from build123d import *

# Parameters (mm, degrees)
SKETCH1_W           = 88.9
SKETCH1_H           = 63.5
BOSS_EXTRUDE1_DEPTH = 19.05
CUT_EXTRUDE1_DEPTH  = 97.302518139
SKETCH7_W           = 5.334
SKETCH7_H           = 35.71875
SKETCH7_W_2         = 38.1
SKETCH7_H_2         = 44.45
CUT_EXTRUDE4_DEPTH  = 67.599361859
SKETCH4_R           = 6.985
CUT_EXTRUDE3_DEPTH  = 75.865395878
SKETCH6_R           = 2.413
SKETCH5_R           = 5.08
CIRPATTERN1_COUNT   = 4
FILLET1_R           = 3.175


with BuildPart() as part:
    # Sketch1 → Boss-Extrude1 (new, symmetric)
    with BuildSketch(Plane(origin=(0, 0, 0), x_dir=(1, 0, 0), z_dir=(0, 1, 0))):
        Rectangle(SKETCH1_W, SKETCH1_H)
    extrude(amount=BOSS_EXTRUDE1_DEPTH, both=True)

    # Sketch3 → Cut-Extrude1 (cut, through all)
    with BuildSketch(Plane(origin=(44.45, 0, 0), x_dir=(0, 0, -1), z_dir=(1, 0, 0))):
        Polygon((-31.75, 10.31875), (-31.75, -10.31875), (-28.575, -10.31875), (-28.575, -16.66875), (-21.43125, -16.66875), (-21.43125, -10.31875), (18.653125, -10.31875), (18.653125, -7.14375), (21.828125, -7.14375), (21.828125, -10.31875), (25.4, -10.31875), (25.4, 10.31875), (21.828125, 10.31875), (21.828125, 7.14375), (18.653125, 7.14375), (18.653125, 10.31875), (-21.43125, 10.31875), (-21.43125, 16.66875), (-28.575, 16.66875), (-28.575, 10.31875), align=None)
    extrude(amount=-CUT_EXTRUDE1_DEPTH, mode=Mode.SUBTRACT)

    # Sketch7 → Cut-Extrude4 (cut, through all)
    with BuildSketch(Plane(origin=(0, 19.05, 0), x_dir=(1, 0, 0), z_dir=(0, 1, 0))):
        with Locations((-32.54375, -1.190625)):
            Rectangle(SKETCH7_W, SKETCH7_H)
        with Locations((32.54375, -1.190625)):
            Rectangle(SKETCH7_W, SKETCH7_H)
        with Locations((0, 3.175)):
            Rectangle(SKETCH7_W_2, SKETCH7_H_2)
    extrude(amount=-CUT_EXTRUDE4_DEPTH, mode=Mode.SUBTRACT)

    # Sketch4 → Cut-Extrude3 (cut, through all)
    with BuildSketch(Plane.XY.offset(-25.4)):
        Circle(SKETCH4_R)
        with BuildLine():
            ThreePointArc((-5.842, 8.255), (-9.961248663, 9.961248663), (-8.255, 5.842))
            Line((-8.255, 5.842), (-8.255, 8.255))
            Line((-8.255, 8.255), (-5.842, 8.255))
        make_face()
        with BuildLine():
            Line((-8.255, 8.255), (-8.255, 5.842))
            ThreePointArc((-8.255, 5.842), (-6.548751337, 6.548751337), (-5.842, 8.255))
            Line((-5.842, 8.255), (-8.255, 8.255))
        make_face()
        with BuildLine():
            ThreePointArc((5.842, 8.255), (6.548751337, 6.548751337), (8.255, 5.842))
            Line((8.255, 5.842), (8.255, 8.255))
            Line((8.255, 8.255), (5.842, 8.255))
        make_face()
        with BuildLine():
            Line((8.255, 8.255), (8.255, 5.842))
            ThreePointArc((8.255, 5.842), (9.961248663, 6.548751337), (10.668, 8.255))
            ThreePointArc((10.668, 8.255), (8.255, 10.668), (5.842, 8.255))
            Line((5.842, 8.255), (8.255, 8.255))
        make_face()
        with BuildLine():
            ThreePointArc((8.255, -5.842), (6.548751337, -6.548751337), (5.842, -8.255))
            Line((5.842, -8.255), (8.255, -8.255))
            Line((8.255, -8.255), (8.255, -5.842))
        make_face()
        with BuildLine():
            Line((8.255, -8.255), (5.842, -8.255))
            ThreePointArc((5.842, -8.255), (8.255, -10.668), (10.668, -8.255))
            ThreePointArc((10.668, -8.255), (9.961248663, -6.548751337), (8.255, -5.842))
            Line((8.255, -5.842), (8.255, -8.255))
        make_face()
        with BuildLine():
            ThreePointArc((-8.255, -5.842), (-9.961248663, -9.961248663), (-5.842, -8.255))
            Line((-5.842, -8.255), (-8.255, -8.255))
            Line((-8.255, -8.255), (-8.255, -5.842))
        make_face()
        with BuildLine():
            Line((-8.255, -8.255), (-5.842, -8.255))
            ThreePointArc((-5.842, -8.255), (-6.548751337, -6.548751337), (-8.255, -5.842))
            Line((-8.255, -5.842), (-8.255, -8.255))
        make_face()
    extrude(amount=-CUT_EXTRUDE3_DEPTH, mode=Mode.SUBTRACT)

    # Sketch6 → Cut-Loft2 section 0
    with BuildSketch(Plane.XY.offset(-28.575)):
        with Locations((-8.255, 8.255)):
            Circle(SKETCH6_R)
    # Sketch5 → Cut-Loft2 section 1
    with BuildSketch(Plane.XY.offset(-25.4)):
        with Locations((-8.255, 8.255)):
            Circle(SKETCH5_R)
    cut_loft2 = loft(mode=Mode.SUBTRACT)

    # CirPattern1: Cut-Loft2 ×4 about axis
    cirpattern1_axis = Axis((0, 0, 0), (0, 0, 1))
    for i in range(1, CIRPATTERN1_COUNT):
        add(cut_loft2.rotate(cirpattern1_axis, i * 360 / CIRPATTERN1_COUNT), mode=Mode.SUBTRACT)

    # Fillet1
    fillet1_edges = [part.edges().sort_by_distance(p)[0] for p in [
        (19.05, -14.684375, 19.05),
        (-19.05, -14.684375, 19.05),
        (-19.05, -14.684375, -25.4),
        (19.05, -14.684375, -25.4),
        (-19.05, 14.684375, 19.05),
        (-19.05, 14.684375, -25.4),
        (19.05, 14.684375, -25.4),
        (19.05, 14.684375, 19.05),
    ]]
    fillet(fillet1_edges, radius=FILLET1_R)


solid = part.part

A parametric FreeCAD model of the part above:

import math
import FreeCAD as App
import Part
import Sketcher

V = App.Vector
Q = App.Units.Quantity


def edges_at(feature, points):
    """Names of the edges that pass closest to the given points."""
    edges = feature.Shape.Edges
    near = lambda p: min(range(len(edges)), key=lambda i: edges[i].distToShape(Part.Vertex(*p))[0])
    return sorted({f"Edge{near(p) + 1}" for p in points})


def add_polygon(sketch, points):
    """Adds a closed chain of lines whose ends are joined by coincident constraints."""
    first, n = sketch.GeometryCount, len(points)
    for a, b in zip(points, points[1:] + points[:1]):
        sketch.addGeometry(Part.LineSegment(App.Vector(*a, 0), App.Vector(*b, 0)), False)
    for i in range(n):
        sketch.addConstraint(Sketcher.Constraint("Coincident", first + i, 2, first + (i + 1) % n, 1))

doc = App.newDocument("Part")
body = doc.addObject("PartDesign::Body", "Body")

sketch1 = body.newObject("Sketcher::SketchObject", "Sketch")
sketch1.AttachmentSupport = (doc.getObject("XZ_Plane"), [""])
sketch1.MapMode = "FlatFace"
add_polygon(sketch1, [(-44.45, -31.75), (-44.45, 31.75), (44.45, 31.75), (44.45, -31.75)])
sketch1.addConstraint([
    Sketcher.Constraint("Vertical", 0),
    Sketcher.Constraint("Horizontal", 1),
    Sketcher.Constraint("Vertical", 2),
    Sketcher.Constraint("Horizontal", 3),
    Sketcher.Constraint("Symmetric", 0, 2, 2, 2, -1, 1),
    Sketcher.Constraint("DistanceX", 1, 1, 1, 2, Q("3.5 in")),
    Sketcher.Constraint("DistanceY", 0, 1, 0, 2, Q("2.5 in")),
])
pad1 = body.newObject("PartDesign::Pad", "Pad")
pad1.Profile = sketch1
pad1.Length = Q("1.5 in")
pad1.Midplane = True

sketch2 = body.newObject("Sketcher::SketchObject", "Sketch001")
sketch2.AttachmentSupport = (doc.getObject("YZ_Plane"), [""])
sketch2.MapMode = "FlatFace"
sketch2.AttachmentOffset = App.Placement(V(0, 0, 1.75 * 25.4), App.Rotation())
add_polygon(sketch2, [(10.31875, 31.75), (-10.31875, 31.75), (-10.31875, 28.575), (-16.66875, 28.575), (-16.66875, 21.43125), (-10.31875, 21.43125), (-10.31875, -18.653125), (-7.14375, -18.653125), (-7.14375, -21.828125), (-10.31875, -21.828125), (-10.31875, -25.4), (10.31875, -25.4), (10.31875, -21.828125), (7.14375, -21.828125), (7.14375, -18.653125), (10.31875, -18.653125), (10.31875, 21.43125), (16.66875, 21.43125), (16.66875, 28.575), (10.31875, 28.575)])
sketch2.addConstraint([
    Sketcher.Constraint("Horizontal", 0),
    Sketcher.Constraint("Vertical", 1),
    Sketcher.Constraint("Horizontal", 2),
    Sketcher.Constraint("Vertical", 3),
    Sketcher.Constraint("Horizontal", 4),
    Sketcher.Constraint("Vertical", 5),
    Sketcher.Constraint("Horizontal", 6),
    Sketcher.Constraint("Vertical", 7),
    Sketcher.Constraint("Horizontal", 8),
    Sketcher.Constraint("Vertical", 9),
    Sketcher.Constraint("Horizontal", 10),
    Sketcher.Constraint("Vertical", 11),
    Sketcher.Constraint("Horizontal", 12),
    Sketcher.Constraint("Vertical", 13),
    Sketcher.Constraint("Horizontal", 14),
    Sketcher.Constraint("Vertical", 15),
    Sketcher.Constraint("Horizontal", 16),
    Sketcher.Constraint("Vertical", 17),
    Sketcher.Constraint("Horizontal", 18),
    Sketcher.Constraint("Vertical", 19),
    Sketcher.Constraint("Symmetric", 8, 2, 11, 2, -2),
    Sketcher.Constraint("Symmetric", 6, 2, 13, 2, -2),
    Sketcher.Constraint("Symmetric", 4, 2, 15, 2, -2),
    Sketcher.Constraint("Symmetric", 2, 2, 17, 2, -2),
    Sketcher.Constraint("Vertical", 1, 2, 4, 2),
    Sketcher.Constraint("Vertical", 5, 2, 8, 2),
    Sketcher.Constraint("Vertical", 15, 2, 18, 2),
    Sketcher.Constraint("Equal", 14, 1),
    Sketcher.Constraint("Equal", 1, 7),
    Sketcher.Constraint("DistanceY", 9, 2, -1, 1, Q("1 in")),
    Sketcher.Constraint("DistanceX", 2, 2, 2, 1, Q("0.25 in")),
    Sketcher.Constraint("DistanceX", 0, 2, 0, 1, Q("0.8125 in")),
    Sketcher.Constraint("DistanceX", 6, 1, 6, 2, Q("0.125 in")),
    Sketcher.Constraint("DistanceY", 3, 2, 3, 1, Q("0.28125 in")),
    Sketcher.Constraint("DistanceY", 5, 2, 5, 1, Q("1.578125 in")),
    Sketcher.Constraint("DistanceY", 9, 2, 9, 1, Q("0.140625 in")),
])
pocket1 = body.newObject("PartDesign::Pocket", "Pocket")
pocket1.Profile = sketch2
pocket1.Type = "ThroughAll"

sketch3 = body.newObject("Sketcher::SketchObject", "Sketch002")
sketch3.AttachmentSupport = (doc.getObject("XZ_Plane"), [""])
sketch3.MapMode = "FlatFace"
sketch3.AttachmentOffset = App.Placement(V(0, 0, -0.75 * 25.4), App.Rotation())
add_polygon(sketch3, [(-35.21075, -16.66875), (-35.21075, 19.05), (-29.87675, 19.05), (-29.87675, -16.66875)])
add_polygon(sketch3, [(29.87675, -16.66875), (29.87675, 19.05), (35.21075, 19.05), (35.21075, -16.66875)])
add_polygon(sketch3, [(-19.05, -25.4), (-19.05, 19.05), (19.05, 19.05), (19.05, -25.4)])
sketch3.addConstraint([
    Sketcher.Constraint("Vertical", 0),
    Sketcher.Constraint("Horizontal", 1),
    Sketcher.Constraint("Vertical", 2),
    Sketcher.Constraint("Horizontal", 3),
    Sketcher.Constraint("Vertical", 4),
    Sketcher.Constraint("Horizontal", 5),
    Sketcher.Constraint("Vertical", 6),
    Sketcher.Constraint("Horizontal", 7),
    Sketcher.Constraint("Vertical", 8),
    Sketcher.Constraint("Horizontal", 9),
    Sketcher.Constraint("Vertical", 10),
    Sketcher.Constraint("Horizontal", 11),
    Sketcher.Constraint("Symmetric", 1, 2, 4, 2, -2),
    Sketcher.Constraint("Symmetric", 3, 2, 6, 2, -2),
    Sketcher.Constraint("Horizontal", 5, 2, 8, 2),
    Sketcher.Constraint("DistanceX", 9, 1, 9, 2, Q("1.5 in")),
    Sketcher.Constraint("DistanceY", 10, 2, -1, 1, Q("1 in")),
    Sketcher.Constraint("DistanceX", 1, 1, 1, 2, Q("0.21 in")),
    Sketcher.Constraint("DistanceY", 8, 1, 8, 2, Q("1.75 in")),
    Sketcher.Constraint("DistanceY", 0, 1, 0, 2, Q("1.40625 in")),
    Sketcher.Constraint("DistanceX", 8, 2, -1, 1, Q("0.75 in")),
    Sketcher.Constraint("DistanceX", 0, 2, 4, 2, Q("2.5625 in")),
])
pocket2 = body.newObject("PartDesign::Pocket", "Pocket001")
pocket2.Profile = sketch3
pocket2.Type = "ThroughAll"
pocket2.Reversed = True

sketch4 = body.newObject("Sketcher::SketchObject", "Sketch003")
sketch4.AttachmentSupport = (doc.getObject("XY_Plane"), [""])
sketch4.MapMode = "FlatFace"
sketch4.AttachmentOffset = App.Placement(V(0, 0, -1 * 25.4), App.Rotation())
sketch4.addGeometry([
    Part.Circle(V(0, 0, 0), V(0, 0, 1), 6.985),
    Part.ArcOfCircle(Part.Circle(V(-8.255, 8.255, 0), V(0, 0, 1), 2.413), math.radians(0), math.radians(270)),
    Part.ArcOfCircle(Part.Circle(V(-8.255, 8.255, 0), V(0, 0, 1), 2.413), math.radians(-90), math.radians(0)),
    Part.ArcOfCircle(Part.Circle(V(8.255, 8.255, 0), V(0, 0, 1), 2.413), math.radians(180), math.radians(270)),
    Part.ArcOfCircle(Part.Circle(V(8.255, 8.255, 0), V(0, 0, 1), 2.413), math.radians(-90), math.radians(0)),
    Part.ArcOfCircle(Part.Circle(V(8.255, 8.255, 0), V(0, 0, 1), 2.413), math.radians(0), math.radians(180)),
    Part.ArcOfCircle(Part.Circle(V(8.255, -8.255, 0), V(0, 0, 1), 2.413), math.radians(90), math.radians(180)),
    Part.ArcOfCircle(Part.Circle(V(8.255, -8.255, 0), V(0, 0, 1), 2.413), math.radians(180), math.radians(360)),
    Part.ArcOfCircle(Part.Circle(V(8.255, -8.255, 0), V(0, 0, 1), 2.413), math.radians(0), math.radians(90)),
    Part.ArcOfCircle(Part.Circle(V(-8.255, -8.255, 0), V(0, 0, 1), 2.413), math.radians(90), math.radians(360)),
    Part.ArcOfCircle(Part.Circle(V(-8.255, -8.255, 0), V(0, 0, 1), 2.413), math.radians(0), math.radians(90)),
], False)
sketch4.addConstraint([
    Sketcher.Constraint("Tangent", 1, 1, 2, 2),
    Sketcher.Constraint("Coincident", 2, 1, 1, 2),
    Sketcher.Constraint("Tangent", 3, 2, 4, 1),
    Sketcher.Constraint("Tangent", 4, 2, 5, 1),
    Sketcher.Constraint("Tangent", 5, 2, 3, 1),
    Sketcher.Constraint("Tangent", 6, 2, 7, 1),
    Sketcher.Constraint("Tangent", 7, 2, 8, 1),
    Sketcher.Constraint("Tangent", 8, 2, 6, 1),
    Sketcher.Constraint("Tangent", 9, 1, 10, 2),
    Sketcher.Constraint("Coincident", 10, 1, 9, 2),
    Sketcher.Constraint("Coincident", 0, 3, -1, 1),
    Sketcher.Constraint("Equal", 2, 3),
    Sketcher.Constraint("Equal", 5, 6),
    Sketcher.Constraint("Equal", 8, 9),
    Sketcher.Constraint("Symmetric", 1, 3, 6, 3, -1, 1),
    Sketcher.Constraint("Symmetric", 3, 3, 9, 3, -1, 1),
    Sketcher.Constraint("Symmetric", 1, 3, 3, 3, -2),
    Sketcher.Constraint("Horizontal", 5, 3, 1, 1),
    Sketcher.Constraint("Horizontal", 1, 1, 4, 2),
    Sketcher.Constraint("Horizontal", 4, 2, 5, 2),
    Sketcher.Constraint("Horizontal", 10, 3, 6, 2),
    Sketcher.Constraint("Horizontal", 6, 2, 7, 2),
    Sketcher.Constraint("Horizontal", 7, 2, 10, 1),
    Sketcher.Constraint("Vertical", 10, 3, 2, 1),
    Sketcher.Constraint("Vertical", 8, 3, 3, 2),
    Sketcher.Constraint("Vertical", 3, 2, 8, 2),
    Sketcher.Constraint("Vertical", 2, 1, 9, 1),
    Sketcher.Constraint("Diameter", 0, Q("0.55 in")),
    Sketcher.Constraint("Radius", 1, Q("0.095 in")),
    Sketcher.Constraint("DistanceX", 1, 1, -1, 1, Q("0.23 in")),
    Sketcher.Constraint("DistanceY", -1, 1, 2, 1, Q("0.23 in")),
])
pocket3 = body.newObject("PartDesign::Pocket", "Pocket002")
pocket3.Profile = sketch4
pocket3.Type = "ThroughAll"

sketch5 = body.newObject("Sketcher::SketchObject", "Sketch004")
sketch5.AttachmentSupport = (doc.getObject("XY_Plane"), [""])
sketch5.MapMode = "FlatFace"
sketch5.AttachmentOffset = App.Placement(V(0, 0, -1.125 * 25.4), App.Rotation())
sketch5.addGeometry(Part.Circle(V(-8.255, 8.255, 0), V(0, 0, 1), 2.413), False)
sketch5.addConstraint([
    Sketcher.Constraint("Diameter", 0, Q("0.19 in")),
    Sketcher.Constraint("DistanceX", 0, 3, -1, 1, Q("0.325 in")),
    Sketcher.Constraint("DistanceY", -1, 1, 0, 3, Q("0.325 in")),
])

sketch6 = body.newObject("Sketcher::SketchObject", "Sketch005")
sketch6.AttachmentSupport = (doc.getObject("XY_Plane"), [""])
sketch6.MapMode = "FlatFace"
sketch6.AttachmentOffset = App.Placement(V(0, 0, -1 * 25.4), App.Rotation())
sketch6.addGeometry(Part.Circle(V(-8.255, 8.255, 0), V(0, 0, 1), 5.08), False)
sketch6.addConstraint([
    Sketcher.Constraint("Diameter", 0, Q("0.4 in")),
    Sketcher.Constraint("DistanceX", 0, 3, -1, 1, Q("0.325 in")),
    Sketcher.Constraint("DistanceY", -1, 1, 0, 3, Q("0.325 in")),
])

subtractiveloft = body.newObject("PartDesign::SubtractiveLoft", "SubtractiveLoft")
subtractiveloft.Profile = sketch5
subtractiveloft.Sections = [sketch6]
doc.recompute()

polarpattern = body.newObject("PartDesign::PolarPattern", "PolarPattern")
polarpattern.Originals = [subtractiveloft]
polarpattern.Axis = (doc.getObject("Z_Axis"), [""])
polarpattern.Angle = 360
polarpattern.Occurrences = 4
body.Tip = polarpattern
doc.recompute()

fillet = body.newObject("PartDesign::Fillet", "Fillet")
fillet.Base = (polarpattern, edges_at(polarpattern, [
    (19.05, -14.684, 19.05),
    (-19.05, -14.684, 19.05),
    (-19.05, -14.684, -25.4),
    (19.05, -14.684, -25.4),
    (-19.05, 14.684, 19.05),
    (-19.05, 14.684, -25.4),
    (19.05, 14.684, -25.4),
    (19.05, 14.684, 19.05),
]))
fillet.Radius = Q("0.125 in")

doc.recompute()
